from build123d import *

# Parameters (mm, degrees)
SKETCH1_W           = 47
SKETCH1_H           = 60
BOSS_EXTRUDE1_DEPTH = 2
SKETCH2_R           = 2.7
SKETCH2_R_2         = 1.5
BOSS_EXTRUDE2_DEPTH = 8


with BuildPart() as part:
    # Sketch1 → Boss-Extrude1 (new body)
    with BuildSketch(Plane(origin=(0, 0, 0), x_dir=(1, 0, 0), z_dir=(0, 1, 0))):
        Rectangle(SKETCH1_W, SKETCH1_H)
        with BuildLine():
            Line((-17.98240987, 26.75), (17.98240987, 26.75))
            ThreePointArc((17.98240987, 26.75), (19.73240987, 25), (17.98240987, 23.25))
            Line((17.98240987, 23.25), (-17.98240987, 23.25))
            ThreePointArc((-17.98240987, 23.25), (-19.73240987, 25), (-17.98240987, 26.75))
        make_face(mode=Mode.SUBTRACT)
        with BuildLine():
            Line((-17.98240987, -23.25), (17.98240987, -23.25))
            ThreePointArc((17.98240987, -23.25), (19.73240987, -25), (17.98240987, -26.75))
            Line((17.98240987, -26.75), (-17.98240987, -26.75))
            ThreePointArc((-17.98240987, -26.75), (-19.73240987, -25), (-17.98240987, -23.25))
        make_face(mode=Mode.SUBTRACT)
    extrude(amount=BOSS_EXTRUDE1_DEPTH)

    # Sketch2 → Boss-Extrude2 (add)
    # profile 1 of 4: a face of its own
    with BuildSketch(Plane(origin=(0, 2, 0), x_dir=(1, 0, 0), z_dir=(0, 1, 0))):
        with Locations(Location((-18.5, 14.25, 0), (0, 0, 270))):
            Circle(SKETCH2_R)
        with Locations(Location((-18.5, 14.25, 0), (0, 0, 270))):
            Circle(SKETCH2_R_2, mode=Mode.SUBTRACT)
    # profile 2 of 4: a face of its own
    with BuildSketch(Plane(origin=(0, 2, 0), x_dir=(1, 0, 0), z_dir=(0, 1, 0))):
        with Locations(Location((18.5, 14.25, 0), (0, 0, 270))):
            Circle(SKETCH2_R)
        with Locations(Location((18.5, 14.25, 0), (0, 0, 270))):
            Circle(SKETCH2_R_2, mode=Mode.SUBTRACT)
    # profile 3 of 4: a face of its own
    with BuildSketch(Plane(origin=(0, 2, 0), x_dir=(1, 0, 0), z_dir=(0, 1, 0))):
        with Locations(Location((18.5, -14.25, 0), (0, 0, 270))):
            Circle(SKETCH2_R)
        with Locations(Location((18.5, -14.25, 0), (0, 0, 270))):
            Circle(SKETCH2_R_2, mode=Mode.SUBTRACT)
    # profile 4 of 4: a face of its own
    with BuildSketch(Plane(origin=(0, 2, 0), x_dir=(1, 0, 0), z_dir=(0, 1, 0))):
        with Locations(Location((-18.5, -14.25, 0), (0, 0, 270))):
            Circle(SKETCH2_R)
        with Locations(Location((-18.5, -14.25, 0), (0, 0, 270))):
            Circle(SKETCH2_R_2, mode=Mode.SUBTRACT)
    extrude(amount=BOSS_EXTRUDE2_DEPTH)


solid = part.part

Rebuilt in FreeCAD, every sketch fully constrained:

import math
import FreeCAD as App
import Part
import Sketcher
Q = App.Units.Quantity


def add_polygon(sketch, points):
    """Adds a closed chain of lines whose ends are joined by coincident constraints."""
    first, n = sketch.GeometryCount, len(points)
    for a, b in zip(points, points[1:] + points[:1]):
        sketch.addGeometry(Part.LineSegment(App.Vector(*a, 0), App.Vector(*b, 0)), False)
    for i in range(n):
        sketch.addConstraint(Sketcher.Constraint("Coincident", first + i, 2, first + (i + 1) % n, 1))

doc = App.newDocument("Part")
params = doc.addObject("Spreadsheet::Sheet", "Params")
for row, (alias, value) in enumerate([
    ("sketch1_width", "47 mm"),
    ("sketch1_height", "60 mm"),
    ("sketch1_radius", "1.75 mm"),
    ("pad1_length", "2 mm"),
    ("sketch2_diameter", "3 mm"),
    ("sketch2_diameter2", "5.4 mm"),
    ("pad2_length", "8 mm"),
], start=1):
    params.set(f"A{row}", alias)
    params.set(f"B{row}", "=" + value)
    params.setAlias(f"B{row}", alias)

body = doc.addObject("PartDesign::Body", "Body")

# Sketch on XZ plane
sketch1 = body.newObject("Sketcher::SketchObject", "Sketch")
sketch1.AttachmentSupport = (doc.getObject("XZ_Plane"), [""])
sketch1.MapMode = "FlatFace"
add_polygon(sketch1, [(-23.5, -30), (-23.5, 30), (23.5, 30), (23.5, -30)])  # lines 0-3
sketch1.addGeometry(Part.ArcOfCircle(Part.Circle(App.Vector(-18, 25, 0), App.Vector(0, 0, 1), 1.8), math.radians(90), math.radians(270)), False)  # 4
sketch1.addGeometry(Part.LineSegment(App.Vector(-18, 23.2, 0), App.Vector(18, 23.2, 0)), False)  # 5
sketch1.addGeometry(Part.ArcOfCircle(Part.Circle(App.Vector(18, 25, 0), App.Vector(0, 0, 1), 1.8), math.radians(-90), math.radians(90)), False)  # 6
sketch1.addGeometry(Part.LineSegment(App.Vector(18, 26.8, 0), App.Vector(-18, 26.8, 0)), False)  # 7
sketch1.addGeometry(Part.ArcOfCircle(Part.Circle(App.Vector(-18, -25, 0), App.Vector(0, 0, 1), 1.8), math.radians(90), math.radians(270)), False)  # 8
sketch1.addGeometry(Part.LineSegment(App.Vector(-18, -26.8, 0), App.Vector(18, -26.8, 0)), False)  # 9
sketch1.addGeometry(Part.ArcOfCircle(Part.Circle(App.Vector(18, -25, 0), App.Vector(0, 0, 1), 1.8), math.radians(-90), math.radians(90)), False)  # 10
sketch1.addGeometry(Part.LineSegment(App.Vector(18, -23.2, 0), App.Vector(-18, -23.2, 0)), False)  # 11
sketch1.addConstraint(Sketcher.Constraint("Tangent", 4, 2, 5, 1))
sketch1.addConstraint(Sketcher.Constraint("Tangent", 5, 2, 6, 1))
sketch1.addConstraint(Sketcher.Constraint("Tangent", 6, 2, 7, 1))
sketch1.addConstraint(Sketcher.Constraint("Tangent", 7, 2, 4, 1))
sketch1.addConstraint(Sketcher.Constraint("Tangent", 8, 2, 9, 1))
sketch1.addConstraint(Sketcher.Constraint("Tangent", 9, 2, 10, 1))
sketch1.addConstraint(Sketcher.Constraint("Tangent", 10, 2, 11, 1))
sketch1.addConstraint(Sketcher.Constraint("Tangent", 11, 2, 8, 1))
sketch1.addConstraint(Sketcher.Constraint("Vertical", 0))
sketch1.addConstraint(Sketcher.Constraint("Horizontal", 1))
sketch1.addConstraint(Sketcher.Constraint("Vertical", 2))
sketch1.addConstraint(Sketcher.Constraint("Horizontal", 3))
sketch1.addConstraint(Sketcher.Constraint("Horizontal", 5))
sketch1.addConstraint(Sketcher.Constraint("Horizontal", 7))
sketch1.addConstraint(Sketcher.Constraint("Horizontal", 9))
sketch1.addConstraint(Sketcher.Constraint("Horizontal", 11))
sketch1.addConstraint(Sketcher.Constraint("Equal", 6, 8))
sketch1.addConstraint(Sketcher.Constraint("Symmetric", 6, 3, 8, 3, -1, 1))
sketch1.addConstraint(Sketcher.Constraint("Symmetric", 0, 2, 2, 2, -1, 1))
sketch1.addConstraint(Sketcher.Constraint("Vertical", 4, 3, 8, 3))
sketch1.addConstraint(Sketcher.Constraint("Vertical", 6, 3, 10, 3))
sketch1.addConstraint(Sketcher.Constraint("DistanceX", 1, 1, 1, 2, Q("47 mm")))
sketch1.addConstraint(Sketcher.Constraint("DistanceY", 0, 1, 0, 2, Q("60 mm")))
sketch1.addConstraint(Sketcher.Constraint("Radius", 4, Q("1.75 mm")))
sketch1.addConstraint(Sketcher.Constraint("DistanceY", -1, 1, 4, 3, Q("25 mm")))
sketch1.addConstraint(Sketcher.Constraint("DistanceX", 5, 1, 5, 2, Q("35.96482 mm")))
sketch1.setExpression("Constraints[25]", "Params.sketch1_width")
sketch1.setExpression("Constraints[26]", "Params.sketch1_height")
sketch1.setExpression("Constraints[27]", "Params.sketch1_radius")
pad1 = body.newObject("PartDesign::Pad", "Pad")
pad1.Profile = sketch1
pad1.setExpression("Length", "Params.pad1_length")
pad1.Reversed = True

# Sketch on XZ plane
sketch2 = body.newObject("Sketcher::SketchObject", "Sketch001")
sketch2.AttachmentSupport = (doc.getObject("XZ_Plane"), [""])
sketch2.MapMode = "FlatFace"
sketch2.AttachmentOffset = App.Placement(App.Vector(0, 0, -2), App.Rotation())
sketch2.addGeometry(Part.Circle(App.Vector(-18.5, -14.2, 0), App.Vector(0, 0, 1), 2.7), False)
sketch2.addGeometry(Part.Circle(App.Vector(-18.5, -14.2, 0), App.Vector(0, 0, 1), 1.5), False)
sketch2.addGeometry(Part.Circle(App.Vector(18.5, -14.2, 0), App.Vector(0, 0, 1), 2.7), False)
sketch2.addGeometry(Part.Circle(App.Vector(18.5, -14.2, 0), App.Vector(0, 0, 1), 1.5), False)
sketch2.addGeometry(Part.Circle(App.Vector(18.5, 14.2, 0), App.Vector(0, 0, 1), 2.7), False)
sketch2.addGeometry(Part.Circle(App.Vector(18.5, 14.2, 0), App.Vector(0, 0, 1), 1.5), False)
sketch2.addGeometry(Part.Circle(App.Vector(-18.5, 14.2, 0), App.Vector(0, 0, 1), 2.7), False)
sketch2.addGeometry(Part.Circle(App.Vector(-18.5, 14.2, 0), App.Vector(0, 0, 1), 1.5), False)
sketch2.addConstraint(Sketcher.Constraint("Coincident", 1, 3, 0, 3))
sketch2.addConstraint(Sketcher.Constraint("Coincident", 3, 3, 2, 3))
sketch2.addConstraint(Sketcher.Constraint("Coincident", 5, 3, 4, 3))
sketch2.addConstraint(Sketcher.Constraint("Coincident", 7, 3, 6, 3))
sketch2.addConstraint(Sketcher.Constraint("Equal", 0, 2))
sketch2.addConstraint(Sketcher.Constraint("Equal", 1, 3))
sketch2.addConstraint(Sketcher.Constraint("Equal", 2, 4))
sketch2.addConstraint(Sketcher.Constraint("Equal", 3, 5))
sketch2.addConstraint(Sketcher.Constraint("Equal", 4, 6))
sketch2.addConstraint(Sketcher.Constraint("Equal", 5, 7))
sketch2.addConstraint(Sketcher.Constraint("Symmetric", 0, 3, 4, 3, -1, 1))
sketch2.addConstraint(Sketcher.Constraint("Symmetric", 2, 3, 6, 3, -1, 1))
sketch2.addConstraint(Sketcher.Constraint("Symmetric", 0, 3, 2, 3, -2))
sketch2.addConstraint(Sketcher.Constraint("Diameter", 1, Q("3 mm")))
sketch2.addConstraint(Sketcher.Constraint("Diameter", 0, Q("5.4 mm")))
sketch2.addConstraint(Sketcher.Constraint("DistanceX", 0, 3, 2, 3, Q("37 mm")))
sketch2.addConstraint(Sketcher.Constraint("DistanceY", 2, 3, 4, 3, Q("28.5 mm")))
sketch2.setExpression("Constraints[13]", "Params.sketch2_diameter")
sketch2.setExpression("Constraints[14]", "Params.sketch2_diameter2")
pad2 = body.newObject("PartDesign::Pad", "Pad001")
pad2.Profile = sketch2
pad2.setExpression("Length", "Params.pad2_length")
pad2.Reversed = True

doc.recompute()
